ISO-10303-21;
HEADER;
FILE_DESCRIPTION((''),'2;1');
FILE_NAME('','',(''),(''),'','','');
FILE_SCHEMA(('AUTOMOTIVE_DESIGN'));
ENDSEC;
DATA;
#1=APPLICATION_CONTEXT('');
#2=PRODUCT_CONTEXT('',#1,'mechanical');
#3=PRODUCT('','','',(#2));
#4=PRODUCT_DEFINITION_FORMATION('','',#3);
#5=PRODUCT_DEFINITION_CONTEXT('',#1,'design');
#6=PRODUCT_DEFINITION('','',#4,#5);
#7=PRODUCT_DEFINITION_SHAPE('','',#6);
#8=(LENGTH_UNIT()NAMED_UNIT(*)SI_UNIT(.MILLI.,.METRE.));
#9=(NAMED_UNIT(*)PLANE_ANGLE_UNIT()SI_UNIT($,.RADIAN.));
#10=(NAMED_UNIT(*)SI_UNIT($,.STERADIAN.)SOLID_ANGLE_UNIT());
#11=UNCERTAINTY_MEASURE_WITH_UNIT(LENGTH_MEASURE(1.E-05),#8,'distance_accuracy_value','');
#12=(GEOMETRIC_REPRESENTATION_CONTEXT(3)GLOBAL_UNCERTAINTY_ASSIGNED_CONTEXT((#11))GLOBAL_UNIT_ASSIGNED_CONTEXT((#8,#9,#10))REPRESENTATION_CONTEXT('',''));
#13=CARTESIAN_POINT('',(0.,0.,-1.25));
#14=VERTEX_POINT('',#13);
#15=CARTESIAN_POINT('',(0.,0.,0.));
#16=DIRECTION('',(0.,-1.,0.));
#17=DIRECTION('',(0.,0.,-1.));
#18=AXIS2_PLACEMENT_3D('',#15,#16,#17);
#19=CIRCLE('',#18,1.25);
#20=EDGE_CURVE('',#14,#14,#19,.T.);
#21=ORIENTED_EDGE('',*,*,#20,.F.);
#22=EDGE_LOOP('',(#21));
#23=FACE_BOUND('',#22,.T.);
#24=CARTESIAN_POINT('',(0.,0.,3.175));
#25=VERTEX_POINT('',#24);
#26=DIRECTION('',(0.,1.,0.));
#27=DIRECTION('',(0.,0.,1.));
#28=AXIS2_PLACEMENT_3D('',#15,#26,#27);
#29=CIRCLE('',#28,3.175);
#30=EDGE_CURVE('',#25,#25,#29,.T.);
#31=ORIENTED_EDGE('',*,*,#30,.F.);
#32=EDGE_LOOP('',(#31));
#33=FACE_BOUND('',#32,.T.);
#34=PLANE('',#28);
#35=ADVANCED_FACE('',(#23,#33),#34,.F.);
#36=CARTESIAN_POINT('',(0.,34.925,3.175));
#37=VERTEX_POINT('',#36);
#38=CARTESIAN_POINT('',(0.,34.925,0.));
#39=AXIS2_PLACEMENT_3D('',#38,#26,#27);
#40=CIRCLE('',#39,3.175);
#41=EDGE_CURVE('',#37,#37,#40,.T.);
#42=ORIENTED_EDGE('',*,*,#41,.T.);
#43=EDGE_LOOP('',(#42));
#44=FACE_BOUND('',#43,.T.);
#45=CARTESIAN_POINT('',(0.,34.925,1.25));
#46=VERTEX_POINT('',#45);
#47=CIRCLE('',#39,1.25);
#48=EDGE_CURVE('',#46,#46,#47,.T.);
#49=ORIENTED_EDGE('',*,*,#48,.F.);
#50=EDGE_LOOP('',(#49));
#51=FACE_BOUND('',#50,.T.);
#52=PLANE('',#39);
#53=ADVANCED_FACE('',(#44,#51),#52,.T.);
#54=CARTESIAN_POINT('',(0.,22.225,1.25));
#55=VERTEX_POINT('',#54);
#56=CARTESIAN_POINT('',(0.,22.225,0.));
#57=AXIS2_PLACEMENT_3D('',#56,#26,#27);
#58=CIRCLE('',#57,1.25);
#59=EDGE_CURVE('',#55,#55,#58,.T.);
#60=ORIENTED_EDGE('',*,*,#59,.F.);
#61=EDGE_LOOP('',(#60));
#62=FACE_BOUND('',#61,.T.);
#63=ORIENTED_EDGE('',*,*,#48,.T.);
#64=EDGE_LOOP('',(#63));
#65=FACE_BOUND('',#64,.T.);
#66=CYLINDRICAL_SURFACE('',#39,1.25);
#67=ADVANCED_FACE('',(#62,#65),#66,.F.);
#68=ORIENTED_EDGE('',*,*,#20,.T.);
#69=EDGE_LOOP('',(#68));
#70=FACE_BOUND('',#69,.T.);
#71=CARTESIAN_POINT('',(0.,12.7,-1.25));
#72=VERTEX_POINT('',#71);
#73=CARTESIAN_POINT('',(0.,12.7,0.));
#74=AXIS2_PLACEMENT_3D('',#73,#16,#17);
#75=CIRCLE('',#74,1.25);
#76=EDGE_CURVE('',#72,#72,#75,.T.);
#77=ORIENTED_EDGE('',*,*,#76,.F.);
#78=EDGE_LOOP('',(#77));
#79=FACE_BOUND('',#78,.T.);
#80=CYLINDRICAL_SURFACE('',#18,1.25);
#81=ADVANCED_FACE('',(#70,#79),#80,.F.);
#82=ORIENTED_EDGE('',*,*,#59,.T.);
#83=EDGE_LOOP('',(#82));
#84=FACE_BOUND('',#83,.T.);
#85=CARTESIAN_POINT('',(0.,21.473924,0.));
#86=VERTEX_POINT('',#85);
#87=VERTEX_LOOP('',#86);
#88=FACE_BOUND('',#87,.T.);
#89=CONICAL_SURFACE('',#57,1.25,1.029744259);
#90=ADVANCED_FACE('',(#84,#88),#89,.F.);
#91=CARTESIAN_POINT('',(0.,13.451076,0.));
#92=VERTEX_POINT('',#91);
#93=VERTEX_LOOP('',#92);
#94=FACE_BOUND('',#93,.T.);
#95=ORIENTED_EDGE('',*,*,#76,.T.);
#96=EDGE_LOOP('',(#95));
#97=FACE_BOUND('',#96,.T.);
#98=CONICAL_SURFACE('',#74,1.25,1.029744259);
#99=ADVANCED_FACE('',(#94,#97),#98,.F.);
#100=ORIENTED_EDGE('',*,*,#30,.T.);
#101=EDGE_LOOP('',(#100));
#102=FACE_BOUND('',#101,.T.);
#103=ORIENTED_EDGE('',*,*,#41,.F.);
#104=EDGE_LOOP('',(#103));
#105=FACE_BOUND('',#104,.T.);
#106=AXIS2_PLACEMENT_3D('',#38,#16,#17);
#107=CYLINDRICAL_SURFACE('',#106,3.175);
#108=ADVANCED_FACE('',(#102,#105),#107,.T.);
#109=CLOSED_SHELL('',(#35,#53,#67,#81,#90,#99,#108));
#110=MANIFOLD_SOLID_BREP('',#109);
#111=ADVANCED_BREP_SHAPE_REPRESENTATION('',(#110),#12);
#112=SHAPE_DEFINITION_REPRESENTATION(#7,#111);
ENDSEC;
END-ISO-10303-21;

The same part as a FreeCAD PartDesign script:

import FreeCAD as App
import Part
import Sketcher
from FreeCAD import Vector
Q = App.Units.Quantity

doc = App.newDocument("Part")
body = doc.addObject("PartDesign::Body", "Body")

# Sketch on XZ plane
sketch1 = body.newObject("Sketcher::SketchObject", "Sketch")
sketch1.AttachmentSupport = (doc.getObject("XZ_Plane"), [""])
sketch1.MapMode = "FlatFace"
sketch1.addGeometry(Part.Circle(Vector(0, 0, 0), Vector(0, 0, 1), 3.2), False)
sketch1.addConstraint(Sketcher.Constraint("Coincident", 0, 3, -1, 1))
sketch1.addConstraint(Sketcher.Constraint("Diameter", 0, Q("0.25 in")))
pad1 = body.newObject("PartDesign::Pad", "Pad")
pad1.Profile = sketch1
pad1.Length = Q("1.375 in")
pad1.Reversed = True

# Sketch on XZ plane
sketch2 = body.newObject("Sketcher::SketchObject", "Sketch001")
sketch2.AttachmentSupport = (doc.getObject("XZ_Plane"), [""])
sketch2.MapMode = "FlatFace"
sketch2.AttachmentOffset = App.Placement(Vector(0, 0, -1.375 * 25.4), App.Rotation())
sketch2.addGeometry(Part.Circle(Vector(0, 0, 0), Vector(0, 0, 1), 1.2), False)
sketch2.addConstraint(Sketcher.Constraint("Coincident", 0, 3, -1, 1))
sketch2.addConstraint(Sketcher.Constraint("Diameter", 0, 2.5))
doc.recompute()
hole = body.newObject("PartDesign::Hole", "Hole")
hole.Profile = sketch2
hole.ThreadType = "None"
hole.Diameter = 2.5
hole.DepthType = "Dimension"
hole.Depth = Q("0.5 in")
hole.DrillPoint = "Angled"
hole.DrillPointAngle = 118
hole.Reversed = True

# Sketch on XZ plane
sketch3 = body.newObject("Sketcher::SketchObject", "Sketch002")
sketch3.AttachmentSupport = (doc.getObject("XZ_Plane"), [""])
sketch3.MapMode = "FlatFace"
sketch3.addGeometry(Part.Circle(Vector(0, 0, 0), Vector(0, 0, 1), 1.2), False)
sketch3.addConstraint(Sketcher.Constraint("Coincident", 0, 3, -1, 1))
sketch3.addConstraint(Sketcher.Constraint("Diameter", 0, 2.5))
doc.recompute()
hole2 = body.newObject("PartDesign::Hole", "Hole001")
hole2.Profile = sketch3
hole2.ThreadType = "None"
hole2.Diameter = 2.5
hole2.DepthType = "Dimension"
hole2.Depth = Q("0.5 in")
hole2.DrillPoint = "Angled"
hole2.DrillPointAngle = 118

doc.recompute()
